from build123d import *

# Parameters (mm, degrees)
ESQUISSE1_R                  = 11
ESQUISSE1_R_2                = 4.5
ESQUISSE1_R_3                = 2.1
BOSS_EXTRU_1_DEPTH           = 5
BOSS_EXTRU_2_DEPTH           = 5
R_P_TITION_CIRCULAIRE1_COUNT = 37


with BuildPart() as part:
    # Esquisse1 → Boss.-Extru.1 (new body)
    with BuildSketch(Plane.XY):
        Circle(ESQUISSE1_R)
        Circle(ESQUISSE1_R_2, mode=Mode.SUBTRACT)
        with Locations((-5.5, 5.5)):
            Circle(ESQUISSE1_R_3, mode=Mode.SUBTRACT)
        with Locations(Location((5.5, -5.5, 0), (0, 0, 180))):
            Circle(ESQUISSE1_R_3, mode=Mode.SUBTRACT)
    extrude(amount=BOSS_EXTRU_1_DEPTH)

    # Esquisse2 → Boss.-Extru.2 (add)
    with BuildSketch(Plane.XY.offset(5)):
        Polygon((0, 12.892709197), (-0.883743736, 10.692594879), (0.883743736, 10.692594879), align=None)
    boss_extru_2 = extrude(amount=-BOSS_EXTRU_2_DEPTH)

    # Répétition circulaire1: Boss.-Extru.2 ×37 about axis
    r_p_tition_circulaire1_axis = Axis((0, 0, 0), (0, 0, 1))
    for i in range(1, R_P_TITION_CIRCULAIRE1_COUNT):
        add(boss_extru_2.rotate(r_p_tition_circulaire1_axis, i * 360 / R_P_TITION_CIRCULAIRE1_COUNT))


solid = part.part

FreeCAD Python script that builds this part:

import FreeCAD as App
import Part
import Sketcher

V = App.Vector


def add_polygon(sketch, points):
    """Adds a closed chain of lines whose ends are joined by coincident constraints."""
    first, n = sketch.GeometryCount, len(points)
    for a, b in zip(points, points[1:] + points[:1]):
        sketch.addGeometry(Part.LineSegment(App.Vector(*a, 0), App.Vector(*b, 0)), False)
    for i in range(n):
        sketch.addConstraint(Sketcher.Constraint("Coincident", first + i, 2, first + (i + 1) % n, 1))

doc = App.newDocument("Part")
body = doc.addObject("PartDesign::Body", "Body")

# Sketch on XY plane
sketch1 = body.newObject("Sketcher::SketchObject", "Sketch")
sketch1.AttachmentSupport = (doc.getObject("XY_Plane"), [""])
sketch1.MapMode = "FlatFace"
sketch1.addGeometry(Part.Circle(V(0, 0, 0), V(0, 0, 1), 11), False)
sketch1.addGeometry(Part.Circle(V(5.5, -5.5, 0), V(0, 0, 1), 2.1), False)
sketch1.addGeometry(Part.Circle(V(-5.5, 5.5, 0), V(0, 0, 1), 2.1), False)
sketch1.addGeometry(Part.Circle(V(0, 0, 0), V(0, 0, 1), 4.5), False)
sketch1.addConstraint(Sketcher.Constraint("Coincident", 0, 3, -1, 1))
sketch1.addConstraint(Sketcher.Constraint("Coincident", 3, 3, -1, 1))
sketch1.addConstraint(Sketcher.Constraint("Equal", 1, 2))
sketch1.addConstraint(Sketcher.Constraint("Symmetric", 1, 3, 2, 3, -1, 1))
sketch1.addConstraint(Sketcher.Constraint("Diameter", 0, 22.0))
sketch1.addConstraint(Sketcher.Constraint("Diameter", 3, 9.0))
sketch1.addConstraint(Sketcher.Constraint("Diameter", 1, 4.2))
sketch1.addConstraint(Sketcher.Constraint("DistanceX", 2, 3, 1, 3, 11.0))
sketch1.addConstraint(Sketcher.Constraint("DistanceY", 1, 3, 2, 3, 11.0))
pad1 = body.newObject("PartDesign::Pad", "Pad")
pad1.Profile = sketch1
pad1.Length = 5

# Sketch on XY plane
sketch2 = body.newObject("Sketcher::SketchObject", "Sketch001")
sketch2.AttachmentSupport = (doc.getObject("XY_Plane"), [""])
sketch2.MapMode = "FlatFace"
sketch2.AttachmentOffset = App.Placement(V(0, 0, 5), App.Rotation())
add_polygon(sketch2, [(0, 12.9), (-0.9, 10.7), (0.9, 10.7)])  # lines 0-2
sketch2.addConstraint(Sketcher.Constraint("Horizontal", 1))
sketch2.addConstraint(Sketcher.Constraint("PointOnObject", 2, 2, -2))
sketch2.addConstraint(Sketcher.Constraint("Equal", 0, 2))
sketch2.addConstraint(Sketcher.Constraint("Distance", 0, 2.370972))
sketch2.addConstraint(Sketcher.Constraint("DistanceX", 1, 1, 1, 2, 1.767487))
sketch2.addConstraint(Sketcher.Constraint("DistanceY", -1, 1, 2, 2, 12.892709))
pad2 = body.newObject("PartDesign::Pad", "Pad001")
pad2.Profile = sketch2
pad2.Length = 5
pad2.Reversed = True
doc.recompute()

polarpattern = body.newObject("PartDesign::PolarPattern", "PolarPattern")
polarpattern.Originals = [pad2]
polarpattern.Axis = (doc.getObject("Z_Axis"), [""])
polarpattern.Angle = 360
polarpattern.Occurrences = 37
body.Tip = polarpattern

doc.recompute()
